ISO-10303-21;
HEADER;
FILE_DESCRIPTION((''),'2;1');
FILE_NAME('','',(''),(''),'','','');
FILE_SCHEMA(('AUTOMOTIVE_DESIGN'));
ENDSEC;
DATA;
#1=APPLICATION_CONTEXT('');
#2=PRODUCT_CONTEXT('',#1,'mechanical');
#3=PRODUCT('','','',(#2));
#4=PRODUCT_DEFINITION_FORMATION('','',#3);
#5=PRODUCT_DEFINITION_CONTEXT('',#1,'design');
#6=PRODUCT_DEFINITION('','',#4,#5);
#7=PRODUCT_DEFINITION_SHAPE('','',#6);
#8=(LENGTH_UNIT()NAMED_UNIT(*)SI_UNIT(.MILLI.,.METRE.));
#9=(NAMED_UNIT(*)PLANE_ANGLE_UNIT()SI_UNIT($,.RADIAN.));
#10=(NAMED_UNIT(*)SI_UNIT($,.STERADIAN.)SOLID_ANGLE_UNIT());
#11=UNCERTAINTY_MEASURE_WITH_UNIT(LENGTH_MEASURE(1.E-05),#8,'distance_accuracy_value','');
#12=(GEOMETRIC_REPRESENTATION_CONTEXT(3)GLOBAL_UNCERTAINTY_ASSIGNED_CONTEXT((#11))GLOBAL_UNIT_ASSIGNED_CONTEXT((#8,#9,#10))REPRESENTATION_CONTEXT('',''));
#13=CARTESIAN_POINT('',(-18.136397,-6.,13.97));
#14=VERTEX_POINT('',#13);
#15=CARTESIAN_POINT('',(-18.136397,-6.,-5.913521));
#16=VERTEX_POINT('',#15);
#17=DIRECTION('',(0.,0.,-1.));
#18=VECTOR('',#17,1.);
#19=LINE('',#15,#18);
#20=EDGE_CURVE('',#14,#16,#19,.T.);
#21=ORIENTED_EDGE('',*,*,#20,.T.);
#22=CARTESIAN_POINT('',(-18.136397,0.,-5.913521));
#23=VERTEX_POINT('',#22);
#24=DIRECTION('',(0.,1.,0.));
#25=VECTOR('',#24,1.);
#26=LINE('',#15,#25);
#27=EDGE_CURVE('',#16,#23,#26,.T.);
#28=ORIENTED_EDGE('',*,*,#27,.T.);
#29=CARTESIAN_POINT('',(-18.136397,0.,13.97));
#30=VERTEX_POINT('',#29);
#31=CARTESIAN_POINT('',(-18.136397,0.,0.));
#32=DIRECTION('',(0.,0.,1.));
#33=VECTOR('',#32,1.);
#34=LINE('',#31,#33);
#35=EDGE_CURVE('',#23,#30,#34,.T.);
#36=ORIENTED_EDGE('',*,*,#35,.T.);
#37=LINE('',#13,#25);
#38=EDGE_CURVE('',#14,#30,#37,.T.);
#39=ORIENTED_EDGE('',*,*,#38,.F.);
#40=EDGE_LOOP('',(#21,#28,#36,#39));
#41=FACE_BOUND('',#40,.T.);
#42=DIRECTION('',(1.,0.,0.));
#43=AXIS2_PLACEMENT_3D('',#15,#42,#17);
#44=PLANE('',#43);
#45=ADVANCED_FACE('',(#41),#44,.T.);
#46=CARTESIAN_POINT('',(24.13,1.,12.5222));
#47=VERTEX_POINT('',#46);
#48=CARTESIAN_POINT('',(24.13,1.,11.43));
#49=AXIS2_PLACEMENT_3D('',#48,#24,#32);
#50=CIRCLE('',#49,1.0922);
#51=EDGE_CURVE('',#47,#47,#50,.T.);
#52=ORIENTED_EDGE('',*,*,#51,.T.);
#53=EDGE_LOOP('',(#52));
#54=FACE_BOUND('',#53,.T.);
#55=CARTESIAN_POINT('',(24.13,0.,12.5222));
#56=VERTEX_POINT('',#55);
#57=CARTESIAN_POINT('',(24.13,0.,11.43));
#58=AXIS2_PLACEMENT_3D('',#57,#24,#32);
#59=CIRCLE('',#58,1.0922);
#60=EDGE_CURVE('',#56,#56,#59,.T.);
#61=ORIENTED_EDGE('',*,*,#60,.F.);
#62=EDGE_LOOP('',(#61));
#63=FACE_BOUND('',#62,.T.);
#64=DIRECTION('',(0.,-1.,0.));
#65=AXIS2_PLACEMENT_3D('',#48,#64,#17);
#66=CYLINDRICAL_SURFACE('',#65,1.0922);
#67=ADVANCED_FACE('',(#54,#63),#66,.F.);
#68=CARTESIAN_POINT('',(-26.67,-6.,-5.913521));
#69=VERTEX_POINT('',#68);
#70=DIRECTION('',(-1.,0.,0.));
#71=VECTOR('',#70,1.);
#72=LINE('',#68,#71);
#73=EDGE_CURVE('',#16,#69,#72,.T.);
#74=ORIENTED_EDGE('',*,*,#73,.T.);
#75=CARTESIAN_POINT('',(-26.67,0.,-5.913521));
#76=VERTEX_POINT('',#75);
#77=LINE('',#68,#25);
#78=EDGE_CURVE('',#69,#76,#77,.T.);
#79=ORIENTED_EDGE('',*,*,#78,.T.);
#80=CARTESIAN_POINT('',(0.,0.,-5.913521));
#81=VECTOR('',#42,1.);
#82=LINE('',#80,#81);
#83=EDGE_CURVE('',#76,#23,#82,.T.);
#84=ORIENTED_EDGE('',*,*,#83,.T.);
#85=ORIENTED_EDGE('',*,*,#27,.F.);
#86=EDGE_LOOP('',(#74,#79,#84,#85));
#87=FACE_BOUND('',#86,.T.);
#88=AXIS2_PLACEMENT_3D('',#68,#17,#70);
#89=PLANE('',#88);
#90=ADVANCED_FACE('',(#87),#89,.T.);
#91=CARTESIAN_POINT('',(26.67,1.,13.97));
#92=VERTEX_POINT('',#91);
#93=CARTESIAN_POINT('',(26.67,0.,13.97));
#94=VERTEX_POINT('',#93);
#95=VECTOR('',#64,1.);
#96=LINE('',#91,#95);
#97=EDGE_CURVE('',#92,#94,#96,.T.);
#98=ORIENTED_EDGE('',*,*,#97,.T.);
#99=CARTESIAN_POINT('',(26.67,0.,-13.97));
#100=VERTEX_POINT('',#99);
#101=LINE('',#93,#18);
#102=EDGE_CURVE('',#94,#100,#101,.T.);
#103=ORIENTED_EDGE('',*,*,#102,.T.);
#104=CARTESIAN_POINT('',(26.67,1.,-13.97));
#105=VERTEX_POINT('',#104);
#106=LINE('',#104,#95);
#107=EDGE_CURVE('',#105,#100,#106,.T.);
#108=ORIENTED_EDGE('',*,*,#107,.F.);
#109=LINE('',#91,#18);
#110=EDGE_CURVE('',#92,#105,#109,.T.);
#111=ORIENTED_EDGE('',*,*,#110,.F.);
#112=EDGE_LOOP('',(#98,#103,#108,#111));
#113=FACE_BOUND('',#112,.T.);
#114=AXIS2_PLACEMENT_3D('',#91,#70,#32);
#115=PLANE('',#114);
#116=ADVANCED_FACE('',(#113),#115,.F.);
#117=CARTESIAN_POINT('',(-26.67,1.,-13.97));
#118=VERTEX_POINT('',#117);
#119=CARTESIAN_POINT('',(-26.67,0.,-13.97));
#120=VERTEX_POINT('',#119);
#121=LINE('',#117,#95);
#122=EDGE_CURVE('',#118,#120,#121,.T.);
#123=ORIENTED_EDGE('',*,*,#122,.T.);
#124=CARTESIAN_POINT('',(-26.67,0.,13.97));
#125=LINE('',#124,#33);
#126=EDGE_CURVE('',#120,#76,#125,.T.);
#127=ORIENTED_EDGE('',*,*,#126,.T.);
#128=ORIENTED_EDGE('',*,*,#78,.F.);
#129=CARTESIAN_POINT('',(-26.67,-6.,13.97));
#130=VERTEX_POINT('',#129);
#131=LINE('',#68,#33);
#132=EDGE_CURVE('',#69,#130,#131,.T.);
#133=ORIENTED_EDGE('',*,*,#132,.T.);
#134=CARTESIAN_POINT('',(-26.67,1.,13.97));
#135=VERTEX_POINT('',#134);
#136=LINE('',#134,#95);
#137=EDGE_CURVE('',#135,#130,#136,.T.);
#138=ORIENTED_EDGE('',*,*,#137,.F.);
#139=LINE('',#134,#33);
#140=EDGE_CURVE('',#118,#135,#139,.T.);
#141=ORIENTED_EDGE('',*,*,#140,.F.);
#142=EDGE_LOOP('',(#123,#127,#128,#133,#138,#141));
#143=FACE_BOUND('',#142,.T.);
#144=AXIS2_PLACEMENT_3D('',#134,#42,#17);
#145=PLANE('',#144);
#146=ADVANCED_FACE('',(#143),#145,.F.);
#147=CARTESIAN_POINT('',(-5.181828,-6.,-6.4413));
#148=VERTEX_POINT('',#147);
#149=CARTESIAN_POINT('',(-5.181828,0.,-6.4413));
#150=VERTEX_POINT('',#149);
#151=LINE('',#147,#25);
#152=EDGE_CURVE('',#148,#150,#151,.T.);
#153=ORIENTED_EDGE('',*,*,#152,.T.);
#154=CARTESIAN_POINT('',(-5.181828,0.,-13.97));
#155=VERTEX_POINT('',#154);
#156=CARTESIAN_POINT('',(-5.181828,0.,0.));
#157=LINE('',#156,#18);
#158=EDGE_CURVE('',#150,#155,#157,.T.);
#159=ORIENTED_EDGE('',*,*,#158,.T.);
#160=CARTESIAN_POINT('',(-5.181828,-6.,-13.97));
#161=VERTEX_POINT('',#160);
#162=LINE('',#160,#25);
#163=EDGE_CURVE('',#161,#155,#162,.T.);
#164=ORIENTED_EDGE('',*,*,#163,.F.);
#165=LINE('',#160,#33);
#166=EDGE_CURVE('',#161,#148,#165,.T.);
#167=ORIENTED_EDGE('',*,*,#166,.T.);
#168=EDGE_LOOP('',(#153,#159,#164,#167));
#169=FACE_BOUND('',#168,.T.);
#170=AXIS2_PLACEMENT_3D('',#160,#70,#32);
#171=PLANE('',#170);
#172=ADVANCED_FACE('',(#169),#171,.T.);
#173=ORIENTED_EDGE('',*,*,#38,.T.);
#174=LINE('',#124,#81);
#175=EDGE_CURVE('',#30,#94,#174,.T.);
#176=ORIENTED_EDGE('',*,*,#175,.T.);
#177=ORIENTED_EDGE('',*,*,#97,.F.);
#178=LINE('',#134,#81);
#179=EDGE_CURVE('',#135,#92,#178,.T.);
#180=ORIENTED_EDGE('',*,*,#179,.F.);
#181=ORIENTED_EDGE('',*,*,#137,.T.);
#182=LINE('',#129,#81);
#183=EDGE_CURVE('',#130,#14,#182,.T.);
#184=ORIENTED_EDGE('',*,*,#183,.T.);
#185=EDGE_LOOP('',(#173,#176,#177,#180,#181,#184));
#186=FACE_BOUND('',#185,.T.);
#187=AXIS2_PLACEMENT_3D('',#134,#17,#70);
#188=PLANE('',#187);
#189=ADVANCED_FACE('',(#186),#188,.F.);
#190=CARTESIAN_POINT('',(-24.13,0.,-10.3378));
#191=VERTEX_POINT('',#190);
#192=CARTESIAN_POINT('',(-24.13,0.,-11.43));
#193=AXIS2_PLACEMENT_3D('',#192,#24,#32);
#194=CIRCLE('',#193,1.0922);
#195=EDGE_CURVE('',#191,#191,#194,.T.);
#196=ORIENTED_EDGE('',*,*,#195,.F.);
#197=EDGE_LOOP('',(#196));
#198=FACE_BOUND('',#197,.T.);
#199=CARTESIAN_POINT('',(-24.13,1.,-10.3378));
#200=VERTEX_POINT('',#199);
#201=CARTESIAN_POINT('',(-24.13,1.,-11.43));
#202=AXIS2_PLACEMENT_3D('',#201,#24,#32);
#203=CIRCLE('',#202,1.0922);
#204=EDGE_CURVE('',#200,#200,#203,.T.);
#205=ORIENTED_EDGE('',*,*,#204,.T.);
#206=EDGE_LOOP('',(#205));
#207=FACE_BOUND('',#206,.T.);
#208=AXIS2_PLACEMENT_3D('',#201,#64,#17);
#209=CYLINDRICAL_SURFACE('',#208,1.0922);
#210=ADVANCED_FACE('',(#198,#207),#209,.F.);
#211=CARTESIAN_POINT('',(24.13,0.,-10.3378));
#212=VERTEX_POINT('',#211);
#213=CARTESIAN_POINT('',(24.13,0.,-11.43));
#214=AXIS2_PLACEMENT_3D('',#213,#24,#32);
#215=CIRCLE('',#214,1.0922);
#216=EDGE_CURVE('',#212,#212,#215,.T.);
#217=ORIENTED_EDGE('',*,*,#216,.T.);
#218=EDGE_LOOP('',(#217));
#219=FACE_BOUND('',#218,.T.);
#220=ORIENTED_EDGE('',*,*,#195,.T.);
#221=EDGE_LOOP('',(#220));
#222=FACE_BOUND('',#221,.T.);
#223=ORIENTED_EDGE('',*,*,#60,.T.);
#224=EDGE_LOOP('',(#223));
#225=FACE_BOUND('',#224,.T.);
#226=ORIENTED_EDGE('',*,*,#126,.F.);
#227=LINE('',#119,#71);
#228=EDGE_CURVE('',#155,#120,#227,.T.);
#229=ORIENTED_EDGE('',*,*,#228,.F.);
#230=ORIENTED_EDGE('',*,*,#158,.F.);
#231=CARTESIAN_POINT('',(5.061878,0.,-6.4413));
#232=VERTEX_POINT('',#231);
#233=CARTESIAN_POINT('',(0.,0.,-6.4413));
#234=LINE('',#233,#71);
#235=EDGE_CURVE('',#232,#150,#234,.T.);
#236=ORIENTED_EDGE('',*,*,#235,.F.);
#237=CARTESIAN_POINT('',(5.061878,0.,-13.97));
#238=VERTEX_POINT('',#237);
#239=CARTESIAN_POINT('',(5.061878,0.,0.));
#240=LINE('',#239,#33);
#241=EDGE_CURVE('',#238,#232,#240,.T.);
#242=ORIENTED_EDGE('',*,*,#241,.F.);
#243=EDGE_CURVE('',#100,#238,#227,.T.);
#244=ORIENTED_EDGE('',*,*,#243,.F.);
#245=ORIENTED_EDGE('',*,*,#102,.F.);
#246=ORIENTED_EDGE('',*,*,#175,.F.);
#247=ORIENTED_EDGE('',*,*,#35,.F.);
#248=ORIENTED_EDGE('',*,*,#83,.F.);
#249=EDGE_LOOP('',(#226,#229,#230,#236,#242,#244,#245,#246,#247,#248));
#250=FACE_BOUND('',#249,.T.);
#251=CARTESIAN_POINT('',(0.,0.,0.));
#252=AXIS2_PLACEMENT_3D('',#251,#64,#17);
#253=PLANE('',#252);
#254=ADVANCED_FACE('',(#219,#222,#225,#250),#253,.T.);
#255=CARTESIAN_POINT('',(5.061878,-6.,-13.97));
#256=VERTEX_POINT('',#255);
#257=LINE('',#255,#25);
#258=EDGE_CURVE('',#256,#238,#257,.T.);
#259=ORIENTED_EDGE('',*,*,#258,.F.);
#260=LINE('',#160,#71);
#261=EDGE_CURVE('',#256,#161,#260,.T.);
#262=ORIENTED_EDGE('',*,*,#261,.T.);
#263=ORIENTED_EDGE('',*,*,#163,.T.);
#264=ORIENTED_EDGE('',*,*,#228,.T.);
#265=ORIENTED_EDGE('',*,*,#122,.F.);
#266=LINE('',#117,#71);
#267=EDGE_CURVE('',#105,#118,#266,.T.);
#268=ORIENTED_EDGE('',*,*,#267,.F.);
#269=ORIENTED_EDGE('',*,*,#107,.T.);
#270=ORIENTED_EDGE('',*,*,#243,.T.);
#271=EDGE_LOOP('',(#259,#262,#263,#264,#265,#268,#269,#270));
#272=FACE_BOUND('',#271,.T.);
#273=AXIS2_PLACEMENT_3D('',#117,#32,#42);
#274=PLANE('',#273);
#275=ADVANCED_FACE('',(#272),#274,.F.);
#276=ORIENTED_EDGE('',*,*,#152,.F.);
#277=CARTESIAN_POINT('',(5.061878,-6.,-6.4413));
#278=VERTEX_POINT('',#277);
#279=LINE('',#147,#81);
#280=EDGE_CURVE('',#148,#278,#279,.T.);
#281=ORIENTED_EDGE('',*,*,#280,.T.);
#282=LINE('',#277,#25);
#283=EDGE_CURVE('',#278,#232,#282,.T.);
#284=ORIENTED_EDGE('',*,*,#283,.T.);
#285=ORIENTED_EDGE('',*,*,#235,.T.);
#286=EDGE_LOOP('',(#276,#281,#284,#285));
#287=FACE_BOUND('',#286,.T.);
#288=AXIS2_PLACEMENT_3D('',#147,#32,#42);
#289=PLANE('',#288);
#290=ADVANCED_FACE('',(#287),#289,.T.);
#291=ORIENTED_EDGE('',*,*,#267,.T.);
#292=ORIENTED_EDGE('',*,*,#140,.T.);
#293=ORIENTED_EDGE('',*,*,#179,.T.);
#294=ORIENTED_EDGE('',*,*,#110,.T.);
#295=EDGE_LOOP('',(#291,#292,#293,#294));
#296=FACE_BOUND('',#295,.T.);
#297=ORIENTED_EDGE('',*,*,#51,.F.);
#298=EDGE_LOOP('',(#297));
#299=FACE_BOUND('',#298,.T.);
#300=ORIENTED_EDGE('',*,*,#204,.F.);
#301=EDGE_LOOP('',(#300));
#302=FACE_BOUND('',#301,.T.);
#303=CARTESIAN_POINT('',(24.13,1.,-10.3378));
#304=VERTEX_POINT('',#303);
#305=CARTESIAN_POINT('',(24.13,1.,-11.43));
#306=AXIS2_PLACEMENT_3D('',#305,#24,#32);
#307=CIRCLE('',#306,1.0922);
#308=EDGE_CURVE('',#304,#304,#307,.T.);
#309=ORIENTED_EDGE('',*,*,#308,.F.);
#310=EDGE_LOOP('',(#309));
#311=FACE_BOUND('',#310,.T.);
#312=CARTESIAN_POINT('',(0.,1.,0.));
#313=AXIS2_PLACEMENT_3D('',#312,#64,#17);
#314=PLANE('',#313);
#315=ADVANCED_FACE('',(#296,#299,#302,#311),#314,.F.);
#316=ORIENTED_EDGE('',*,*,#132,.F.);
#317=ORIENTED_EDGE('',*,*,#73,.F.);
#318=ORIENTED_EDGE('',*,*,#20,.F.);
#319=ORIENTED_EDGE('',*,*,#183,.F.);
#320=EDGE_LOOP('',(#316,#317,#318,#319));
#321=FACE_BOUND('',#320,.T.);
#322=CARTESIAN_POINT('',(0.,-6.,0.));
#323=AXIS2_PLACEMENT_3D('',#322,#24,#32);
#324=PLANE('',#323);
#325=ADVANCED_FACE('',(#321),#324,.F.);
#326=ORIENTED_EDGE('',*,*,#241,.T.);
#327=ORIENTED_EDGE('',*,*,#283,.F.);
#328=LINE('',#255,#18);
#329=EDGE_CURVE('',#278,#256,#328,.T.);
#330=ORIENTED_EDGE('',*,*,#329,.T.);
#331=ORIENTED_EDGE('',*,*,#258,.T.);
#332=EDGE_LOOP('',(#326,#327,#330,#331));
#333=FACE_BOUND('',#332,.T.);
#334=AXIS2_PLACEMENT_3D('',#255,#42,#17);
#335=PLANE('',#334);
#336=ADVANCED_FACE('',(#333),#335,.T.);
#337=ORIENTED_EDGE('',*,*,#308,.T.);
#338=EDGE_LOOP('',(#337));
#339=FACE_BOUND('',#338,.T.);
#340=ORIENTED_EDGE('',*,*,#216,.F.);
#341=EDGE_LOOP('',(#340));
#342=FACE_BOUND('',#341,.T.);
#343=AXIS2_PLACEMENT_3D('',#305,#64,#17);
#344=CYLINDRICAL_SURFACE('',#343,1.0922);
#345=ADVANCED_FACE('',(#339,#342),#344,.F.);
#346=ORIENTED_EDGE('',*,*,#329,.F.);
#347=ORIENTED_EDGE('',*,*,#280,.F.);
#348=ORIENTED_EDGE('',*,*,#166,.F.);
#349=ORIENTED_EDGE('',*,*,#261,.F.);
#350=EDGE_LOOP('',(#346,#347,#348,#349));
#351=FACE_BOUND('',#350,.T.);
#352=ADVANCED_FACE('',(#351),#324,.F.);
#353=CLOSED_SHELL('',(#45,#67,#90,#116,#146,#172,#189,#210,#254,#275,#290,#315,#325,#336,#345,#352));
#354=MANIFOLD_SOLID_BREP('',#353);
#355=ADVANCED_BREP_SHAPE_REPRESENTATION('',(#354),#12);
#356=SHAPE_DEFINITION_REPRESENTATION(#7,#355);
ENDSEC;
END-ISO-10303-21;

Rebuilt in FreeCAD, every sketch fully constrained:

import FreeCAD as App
import Part
import Sketcher
Q = App.Units.Quantity

doc = App.newDocument("Part")
body = doc.addObject("PartDesign::Body", "Body")

sketch1 = doc.addObject("Sketcher::SketchObject", "Sketch")
body.addObject(sketch1)
sketch1.AttachmentSupport = (doc.XZ_Plane, [""])
sketch1.MapMode = "FlatFace"
sketch1.addGeometry([
    Part.LineSegment(App.Vector(-26.67, -13.97, 0), App.Vector(-26.67, 13.97, 0)),
    Part.LineSegment(App.Vector(-26.67, 13.97, 0), App.Vector(26.67, 13.97, 0)),
    Part.LineSegment(App.Vector(26.67, 13.97, 0), App.Vector(26.67, -13.97, 0)),
    Part.LineSegment(App.Vector(26.67, -13.97, 0), App.Vector(-26.67, -13.97, 0)),
    Part.Circle(App.Vector(24.13, 11.43, 0), App.Vector(0, 0, 1), 1.0922),
    Part.Circle(App.Vector(-24.13, -11.43, 0), App.Vector(0, 0, 1), 1.0922),
    Part.Circle(App.Vector(24.13, -11.43, 0), App.Vector(0, 0, 1), 1.0922),
], False)
sketch1.addConstraint([
    Sketcher.Constraint("Coincident", 0, 2, 1, 1),
    Sketcher.Constraint("Coincident", 1, 2, 2, 1),
    Sketcher.Constraint("Coincident", 2, 2, 3, 1),
    Sketcher.Constraint("Coincident", 3, 2, 0, 1),
    Sketcher.Constraint("Vertical", 0),
    Sketcher.Constraint("Horizontal", 1),
    Sketcher.Constraint("Vertical", 2),
    Sketcher.Constraint("Horizontal", 3),
    Sketcher.Constraint("Equal", 4, 5),
    Sketcher.Constraint("Equal", 5, 6),
    Sketcher.Constraint("Symmetric", 4, 3, 5, 3, -1, 1),
    Sketcher.Constraint("Symmetric", 0, 2, 2, 2, -1, 1),
    Sketcher.Constraint("Symmetric", 5, 3, 6, 3, -2),
    Sketcher.Constraint("Diameter", 4, Q("0.086 in")),
    Sketcher.Constraint("DistanceX", 1, 1, 1, 2, Q("2.1 in")),
    Sketcher.Constraint("DistanceY", 0, 1, 0, 2, Q("1.1 in")),
    Sketcher.Constraint("DistanceY", 5, 3, 0, 2, Q("1 in")),
    Sketcher.Constraint("DistanceX", 0, 2, 4, 3, Q("2 in")),
])
pad1 = doc.addObject("PartDesign::Pad", "Pad")
body.addObject(pad1)
pad1.Profile = sketch1
pad1.Length = 1
pad1.Reversed = True

sketch2 = doc.addObject("Sketcher::SketchObject", "Sketch001")
body.addObject(sketch2)
sketch2.AttachmentSupport = (doc.XZ_Plane, [""])
sketch2.MapMode = "FlatFace"
sketch2.AttachmentOffset = App.Placement(App.Vector(0, 0, -1), App.Rotation())
sketch2.addGeometry([
    Part.LineSegment(App.Vector(-26.67, -5.913521, 0), App.Vector(-26.67, 13.97, 0)),
    Part.LineSegment(App.Vector(-26.67, 13.97, 0), App.Vector(-18.136397, 13.97, 0)),
    Part.LineSegment(App.Vector(-18.136397, 13.97, 0), App.Vector(-18.136397, -5.913521, 0)),
    Part.LineSegment(App.Vector(-18.136397, -5.913521, 0), App.Vector(-26.67, -5.913521, 0)),
    Part.LineSegment(App.Vector(-5.181828, -13.97, 0), App.Vector(-5.181828, -6.4413, 0)),
    Part.LineSegment(App.Vector(-5.181828, -6.4413, 0), App.Vector(5.061878, -6.4413, 0)),
    Part.LineSegment(App.Vector(5.061878, -6.4413, 0), App.Vector(5.061878, -13.97, 0)),
    Part.LineSegment(App.Vector(5.061878, -13.97, 0), App.Vector(-5.181828, -13.97, 0)),
], False)
sketch2.addConstraint([
    Sketcher.Constraint("Coincident", 0, 2, 1, 1),
    Sketcher.Constraint("Coincident", 1, 2, 2, 1),
    Sketcher.Constraint("Coincident", 2, 2, 3, 1),
    Sketcher.Constraint("Coincident", 3, 2, 0, 1),
    Sketcher.Constraint("Coincident", 4, 2, 5, 1),
    Sketcher.Constraint("Coincident", 5, 2, 6, 1),
    Sketcher.Constraint("Coincident", 6, 2, 7, 1),
    Sketcher.Constraint("Coincident", 7, 2, 4, 1),
    Sketcher.Constraint("Vertical", 0),
    Sketcher.Constraint("Horizontal", 1),
    Sketcher.Constraint("Vertical", 2),
    Sketcher.Constraint("Horizontal", 3),
    Sketcher.Constraint("Vertical", 4),
    Sketcher.Constraint("Horizontal", 5),
    Sketcher.Constraint("Vertical", 6),
    Sketcher.Constraint("Horizontal", 7),
    Sketcher.Constraint("DistanceY", 6, 2, 1, 2, Q("1.1 in")),
    Sketcher.Constraint("DistanceX", 0, 2, -1, 1, Q("1.05 in")),
    Sketcher.Constraint("DistanceY", -1, 1, 0, 2, Q("0.55 in")),
    Sketcher.Constraint("DistanceY", 4, 1, 4, 2, 7.5287),
    Sketcher.Constraint("DistanceY", 0, 1, 0, 2, 19.883521),
    Sketcher.Constraint("DistanceX", 1, 1, 1, 2, 8.533603),
    Sketcher.Constraint("DistanceX", 5, 1, 5, 2, 10.243706),
    Sketcher.Constraint("DistanceX", 2, 2, 4, 2, 12.954569),
])
pad2 = doc.addObject("PartDesign::Pad", "Pad001")
body.addObject(pad2)
pad2.Profile = sketch2
pad2.Length = 7

doc.recompute()
